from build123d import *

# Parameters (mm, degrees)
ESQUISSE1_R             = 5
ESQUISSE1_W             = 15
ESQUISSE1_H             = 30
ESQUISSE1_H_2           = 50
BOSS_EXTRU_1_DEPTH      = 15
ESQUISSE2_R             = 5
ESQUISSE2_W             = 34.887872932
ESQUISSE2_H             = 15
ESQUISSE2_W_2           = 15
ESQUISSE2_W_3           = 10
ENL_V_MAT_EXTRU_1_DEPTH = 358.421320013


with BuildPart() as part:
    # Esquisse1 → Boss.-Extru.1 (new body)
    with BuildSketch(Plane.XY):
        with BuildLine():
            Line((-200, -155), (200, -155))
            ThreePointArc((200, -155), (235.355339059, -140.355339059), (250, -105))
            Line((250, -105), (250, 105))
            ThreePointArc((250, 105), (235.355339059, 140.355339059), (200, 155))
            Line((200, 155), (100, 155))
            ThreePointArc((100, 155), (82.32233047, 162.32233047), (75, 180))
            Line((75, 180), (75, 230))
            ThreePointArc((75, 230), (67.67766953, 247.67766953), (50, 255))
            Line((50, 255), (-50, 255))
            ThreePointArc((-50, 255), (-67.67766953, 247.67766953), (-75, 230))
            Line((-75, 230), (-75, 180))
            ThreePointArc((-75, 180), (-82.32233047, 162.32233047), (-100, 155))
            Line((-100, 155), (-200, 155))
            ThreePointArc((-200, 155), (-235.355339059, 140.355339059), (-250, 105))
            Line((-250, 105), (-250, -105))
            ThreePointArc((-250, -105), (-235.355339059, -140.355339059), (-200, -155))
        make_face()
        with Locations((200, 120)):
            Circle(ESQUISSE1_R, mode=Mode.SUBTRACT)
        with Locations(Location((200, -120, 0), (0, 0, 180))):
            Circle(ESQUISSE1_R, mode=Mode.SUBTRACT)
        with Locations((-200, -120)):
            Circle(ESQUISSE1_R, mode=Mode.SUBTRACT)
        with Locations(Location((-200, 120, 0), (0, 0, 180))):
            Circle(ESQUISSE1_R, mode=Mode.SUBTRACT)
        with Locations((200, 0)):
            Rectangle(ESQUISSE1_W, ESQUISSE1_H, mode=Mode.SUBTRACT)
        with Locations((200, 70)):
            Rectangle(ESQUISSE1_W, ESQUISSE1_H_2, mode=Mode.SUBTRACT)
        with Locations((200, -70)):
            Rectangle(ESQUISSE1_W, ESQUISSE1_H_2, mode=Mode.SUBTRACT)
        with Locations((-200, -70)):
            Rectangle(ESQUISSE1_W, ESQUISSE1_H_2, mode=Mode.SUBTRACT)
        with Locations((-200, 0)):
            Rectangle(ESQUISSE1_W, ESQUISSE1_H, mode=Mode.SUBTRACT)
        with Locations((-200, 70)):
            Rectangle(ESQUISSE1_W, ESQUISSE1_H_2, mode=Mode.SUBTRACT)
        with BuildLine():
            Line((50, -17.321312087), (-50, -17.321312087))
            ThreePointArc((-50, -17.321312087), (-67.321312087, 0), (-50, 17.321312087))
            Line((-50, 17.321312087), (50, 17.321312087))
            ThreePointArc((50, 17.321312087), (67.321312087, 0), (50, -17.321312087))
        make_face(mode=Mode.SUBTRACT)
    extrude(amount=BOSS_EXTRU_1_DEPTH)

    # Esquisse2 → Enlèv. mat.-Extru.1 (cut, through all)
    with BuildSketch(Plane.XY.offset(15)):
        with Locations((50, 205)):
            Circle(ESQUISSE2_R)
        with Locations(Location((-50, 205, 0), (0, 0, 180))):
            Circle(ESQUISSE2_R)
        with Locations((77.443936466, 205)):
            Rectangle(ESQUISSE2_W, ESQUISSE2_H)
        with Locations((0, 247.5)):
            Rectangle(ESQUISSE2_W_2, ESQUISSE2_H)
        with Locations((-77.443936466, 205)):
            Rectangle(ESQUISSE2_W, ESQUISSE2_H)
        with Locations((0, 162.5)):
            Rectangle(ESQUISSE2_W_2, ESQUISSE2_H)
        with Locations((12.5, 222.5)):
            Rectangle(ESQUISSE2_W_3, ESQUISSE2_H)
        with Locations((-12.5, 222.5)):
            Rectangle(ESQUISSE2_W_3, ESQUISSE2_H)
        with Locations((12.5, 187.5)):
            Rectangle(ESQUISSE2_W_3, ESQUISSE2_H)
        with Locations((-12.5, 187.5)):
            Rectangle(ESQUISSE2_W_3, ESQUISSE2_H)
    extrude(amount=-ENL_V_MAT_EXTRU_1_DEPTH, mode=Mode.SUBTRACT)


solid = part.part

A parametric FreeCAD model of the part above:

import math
import FreeCAD as App
import Part
import Sketcher
from FreeCAD import Vector


def add_polygon(sketch, points):
    """Adds a closed chain of lines whose ends are joined by coincident constraints."""
    first, n = sketch.GeometryCount, len(points)
    for a, b in zip(points, points[1:] + points[:1]):
        sketch.addGeometry(Part.LineSegment(App.Vector(*a, 0), App.Vector(*b, 0)), False)
    for i in range(n):
        sketch.addConstraint(Sketcher.Constraint("Coincident", first + i, 2, first + (i + 1) % n, 1))

doc = App.newDocument("Part")
params = doc.addObject("Spreadsheet::Sheet", "Params")
for row, (alias, value) in enumerate([
    ("sketch1_diameter", "10 mm"),
    ("sketch1_radius", "50 mm"),
    ("sketch1_radius2", "25 mm"),
    ("sketch1_width", "400 mm"),
    ("sketch1_width2", "15 mm"),
    ("pad1_length", "15 mm"),
    ("sketch2_diameter", "10 mm"),
    ("sketch2_width", "15 mm"),
    ("sketch2_width2", "10 mm"),
], start=1):
    params.set(f"A{row}", alias)
    params.set(f"B{row}", "=" + value)
    params.setAlias(f"B{row}", alias)

body = doc.addObject("PartDesign::Body", "Body")

sketch1 = doc.addObject("Sketcher::SketchObject", "Sketch")
body.addObject(sketch1)
sketch1.AttachmentSupport = (doc.XY_Plane, [""])
sketch1.MapMode = "FlatFace"
sketch1.addGeometry(Part.LineSegment(Vector(-200, -155, 0), Vector(200, -155, 0)), False)
sketch1.addGeometry(Part.ArcOfCircle(Part.Circle(Vector(200, -105, 0), Vector(0, 0, 1), 50), math.radians(-90), math.radians(0)), False)
sketch1.addGeometry(Part.LineSegment(Vector(250, -105, 0), Vector(250, 105, 0)), False)
sketch1.addGeometry(Part.ArcOfCircle(Part.Circle(Vector(200, 105, 0), Vector(0, 0, 1), 50), math.radians(0), math.radians(90)), False)
sketch1.addGeometry(Part.LineSegment(Vector(200, 155, 0), Vector(100, 155, 0)), False)
sketch1.addGeometry(Part.ArcOfCircle(Part.Circle(Vector(100, 180, 0), Vector(0, 0, 1), 25), math.radians(180), math.radians(270)), False)
sketch1.addGeometry(Part.LineSegment(Vector(75, 180, 0), Vector(75, 230, 0)), False)
sketch1.addGeometry(Part.ArcOfCircle(Part.Circle(Vector(50, 230, 0), Vector(0, 0, 1), 25), math.radians(0), math.radians(90)), False)
sketch1.addGeometry(Part.LineSegment(Vector(50, 255, 0), Vector(-50, 255, 0)), False)
sketch1.addGeometry(Part.ArcOfCircle(Part.Circle(Vector(-50, 230, 0), Vector(0, 0, 1), 25), math.radians(90), math.radians(180)), False)
sketch1.addGeometry(Part.LineSegment(Vector(-75, 230, 0), Vector(-75, 180, 0)), False)
sketch1.addGeometry(Part.ArcOfCircle(Part.Circle(Vector(-100, 180, 0), Vector(0, 0, 1), 25), math.radians(-90), math.radians(0)), False)
sketch1.addGeometry(Part.LineSegment(Vector(-100, 155, 0), Vector(-200, 155, 0)), False)
sketch1.addGeometry(Part.ArcOfCircle(Part.Circle(Vector(-200, 105, 0), Vector(0, 0, 1), 50), math.radians(90), math.radians(180)), False)
sketch1.addGeometry(Part.LineSegment(Vector(-250, 105, 0), Vector(-250, -105, 0)), False)
sketch1.addGeometry(Part.ArcOfCircle(Part.Circle(Vector(-200, -105, 0), Vector(0, 0, 1), 50), math.radians(-180), math.radians(-90)), False)
sketch1.addGeometry(Part.Circle(Vector(-200, -120, 0), Vector(0, 0, 1), 5), False)
add_polygon(sketch1, [(-192, -95), (-208, -95), (-208, -45), (-192, -45)])
sketch1.addGeometry(Part.Circle(Vector(200, -120, 0), Vector(0, 0, 1), 5), False)
add_polygon(sketch1, [(208, -95), (192, -95), (192, -45), (208, -45)])
add_polygon(sketch1, [(-192, -15), (-208, -15), (-208, 15), (-192, 15)])
add_polygon(sketch1, [(-192, 45), (-208, 45), (-208, 95), (-192, 95)])
sketch1.addGeometry(Part.Circle(Vector(-200, 120, 0), Vector(0, 0, 1), 5), False)
sketch1.addGeometry(Part.ArcOfCircle(Part.Circle(Vector(50, 0, 0), Vector(0, 0, 1), 17), math.radians(-90), math.radians(90)), False)
sketch1.addGeometry(Part.LineSegment(Vector(50, -17, 0), Vector(-50, -17, 0)), False)
sketch1.addGeometry(Part.ArcOfCircle(Part.Circle(Vector(-50, 0, 0), Vector(0, 0, 1), 17), math.radians(90), math.radians(270)), False)
sketch1.addGeometry(Part.LineSegment(Vector(-50, 17, 0), Vector(50, 17, 0)), False)
add_polygon(sketch1, [(208, -15), (192, -15), (192, 15), (208, 15)])
add_polygon(sketch1, [(208, 45), (192, 45), (192, 95), (208, 95)])
sketch1.addGeometry(Part.Circle(Vector(200, 120, 0), Vector(0, 0, 1), 5), False)
sketch1.addConstraint(Sketcher.Constraint("Tangent", 0, 2, 1, 1))
sketch1.addConstraint(Sketcher.Constraint("Tangent", 1, 2, 2, 1))
sketch1.addConstraint(Sketcher.Constraint("Tangent", 2, 2, 3, 1))
sketch1.addConstraint(Sketcher.Constraint("Tangent", 3, 2, 4, 1))
sketch1.addConstraint(Sketcher.Constraint("Tangent", 4, 2, 5, 2))
sketch1.addConstraint(Sketcher.Constraint("Tangent", 5, 1, 6, 1))
sketch1.addConstraint(Sketcher.Constraint("Tangent", 6, 2, 7, 1))
sketch1.addConstraint(Sketcher.Constraint("Tangent", 7, 2, 8, 1))
sketch1.addConstraint(Sketcher.Constraint("Tangent", 8, 2, 9, 1))
sketch1.addConstraint(Sketcher.Constraint("Tangent", 9, 2, 10, 1))
sketch1.addConstraint(Sketcher.Constraint("Tangent", 10, 2, 11, 2))
sketch1.addConstraint(Sketcher.Constraint("Tangent", 11, 1, 12, 1))
sketch1.addConstraint(Sketcher.Constraint("Tangent", 12, 2, 13, 1))
sketch1.addConstraint(Sketcher.Constraint("Tangent", 13, 2, 14, 1))
sketch1.addConstraint(Sketcher.Constraint("Tangent", 14, 2, 15, 1))
sketch1.addConstraint(Sketcher.Constraint("Tangent", 15, 2, 0, 1))
sketch1.addConstraint(Sketcher.Constraint("Tangent", 35, 1, 36, 1))
sketch1.addConstraint(Sketcher.Constraint("Tangent", 36, 2, 37, 2))
sketch1.addConstraint(Sketcher.Constraint("Tangent", 37, 1, 38, 1))
sketch1.addConstraint(Sketcher.Constraint("Tangent", 38, 2, 35, 2))
sketch1.addConstraint(Sketcher.Constraint("Horizontal", 0))
sketch1.addConstraint(Sketcher.Constraint("Vertical", 2))
sketch1.addConstraint(Sketcher.Constraint("Horizontal", 4))
sketch1.addConstraint(Sketcher.Constraint("Vertical", 6))
sketch1.addConstraint(Sketcher.Constraint("Horizontal", 8))
sketch1.addConstraint(Sketcher.Constraint("Vertical", 10))
sketch1.addConstraint(Sketcher.Constraint("Horizontal", 12))
sketch1.addConstraint(Sketcher.Constraint("Vertical", 14))
sketch1.addConstraint(Sketcher.Constraint("Horizontal", 17))
sketch1.addConstraint(Sketcher.Constraint("Vertical", 18))
sketch1.addConstraint(Sketcher.Constraint("Horizontal", 19))
sketch1.addConstraint(Sketcher.Constraint("Vertical", 20))
sketch1.addConstraint(Sketcher.Constraint("Horizontal", 22))
sketch1.addConstraint(Sketcher.Constraint("Vertical", 23))
sketch1.addConstraint(Sketcher.Constraint("Horizontal", 24))
sketch1.addConstraint(Sketcher.Constraint("Vertical", 25))
sketch1.addConstraint(Sketcher.Constraint("Horizontal", 26))
sketch1.addConstraint(Sketcher.Constraint("Vertical", 27))
sketch1.addConstraint(Sketcher.Constraint("Horizontal", 28))
sketch1.addConstraint(Sketcher.Constraint("Vertical", 29))
sketch1.addConstraint(Sketcher.Constraint("Horizontal", 30))
sketch1.addConstraint(Sketcher.Constraint("Vertical", 31))
sketch1.addConstraint(Sketcher.Constraint("Horizontal", 32))
sketch1.addConstraint(Sketcher.Constraint("Vertical", 33))
sketch1.addConstraint(Sketcher.Constraint("Horizontal", 36))
sketch1.addConstraint(Sketcher.Constraint("Horizontal", 38))
sketch1.addConstraint(Sketcher.Constraint("Horizontal", 39))
sketch1.addConstraint(Sketcher.Constraint("Vertical", 40))
sketch1.addConstraint(Sketcher.Constraint("Horizontal", 41))
sketch1.addConstraint(Sketcher.Constraint("Vertical", 42))
sketch1.addConstraint(Sketcher.Constraint("Horizontal", 43))
sketch1.addConstraint(Sketcher.Constraint("Vertical", 44))
sketch1.addConstraint(Sketcher.Constraint("Horizontal", 45))
sketch1.addConstraint(Sketcher.Constraint("Vertical", 46))
sketch1.addConstraint(Sketcher.Constraint("Equal", 1, 3))
sketch1.addConstraint(Sketcher.Constraint("Equal", 5, 7))
sketch1.addConstraint(Sketcher.Constraint("Equal", 7, 9))
sketch1.addConstraint(Sketcher.Constraint("Equal", 9, 11))
sketch1.addConstraint(Sketcher.Constraint("Equal", 3, 13))
sketch1.addConstraint(Sketcher.Constraint("Equal", 13, 15))
sketch1.addConstraint(Sketcher.Constraint("Equal", 16, 21))
sketch1.addConstraint(Sketcher.Constraint("Equal", 21, 34))
sketch1.addConstraint(Sketcher.Constraint("Equal", 34, 47))
sketch1.addConstraint(Sketcher.Constraint("Symmetric", 1, 3, 13, 3, -1, 1))
sketch1.addConstraint(Sketcher.Constraint("Symmetric", 21, 3, 34, 3, -1, 1))
sketch1.addConstraint(Sketcher.Constraint("Symmetric", 35, 3, 37, 3, -1, 1))
sketch1.addConstraint(Sketcher.Constraint("Symmetric", 16, 3, 47, 3, -1, 1))
sketch1.addConstraint(Sketcher.Constraint("Symmetric", 24, 2, 30, 2, -1, 1))
sketch1.addConstraint(Sketcher.Constraint("Symmetric", 22, 2, 32, 2, -1, 1))
sketch1.addConstraint(Sketcher.Constraint("Symmetric", 28, 2, 39, 2, -1, 1))
sketch1.addConstraint(Sketcher.Constraint("Symmetric", 26, 2, 41, 2, -1, 1))
sketch1.addConstraint(Sketcher.Constraint("Symmetric", 19, 2, 43, 2, -1, 1))
sketch1.addConstraint(Sketcher.Constraint("Symmetric", 17, 2, 45, 2, -1, 1))
sketch1.addConstraint(Sketcher.Constraint("Symmetric", 5, 3, 11, 3, -2))
sketch1.addConstraint(Sketcher.Constraint("Symmetric", 16, 3, 21, 3, -2))
sketch1.addConstraint(Sketcher.Constraint("Symmetric", 20, 2, 22, 2, -2))
sketch1.addConstraint(Sketcher.Constraint("Symmetric", 18, 2, 24, 2, -2))
sketch1.addConstraint(Sketcher.Constraint("Horizontal", 29, 2, 39, 2))
sketch1.addConstraint(Sketcher.Constraint("Vertical", 15, 3, 16, 3))
sketch1.addConstraint(Sketcher.Constraint("Vertical", 7, 3, 35, 3))
sketch1.addConstraint(Sketcher.Constraint("Vertical", 18, 2, 26, 2))
sketch1.addConstraint(Sketcher.Constraint("Vertical", 20, 2, 28, 2))
sketch1.addConstraint(Sketcher.Constraint("Equal", 4, 8))
sketch1.addConstraint(Sketcher.Constraint("Equal", 10, 18))
sketch1.addConstraint(Sketcher.Constraint("Diameter", 16, 10.0))
sketch1.addConstraint(Sketcher.Constraint("Radius", 1, 50.0))
sketch1.addConstraint(Sketcher.Constraint("Radius", 5, 25.0))
sketch1.addConstraint(Sketcher.Constraint("DistanceX", 0, 1, 0, 2, 400.0))
sketch1.addConstraint(Sketcher.Constraint("DistanceX", 17, 2, 17, 1, 15.0))
sketch1.addConstraint(Sketcher.Constraint("DistanceY", 2, 1, 2, 2, 210.0))
sketch1.addConstraint(Sketcher.Constraint("DistanceY", 6, 1, 6, 2, 50.0))
sketch1.addConstraint(Sketcher.Constraint("DistanceY", 27, 1, 27, 2, 30.0))
sketch1.addConstraint(Sketcher.Constraint("DistanceY", 16, 3, -1, 1, 120.0))
sketch1.addConstraint(Sketcher.Constraint("DistanceY", 17, 2, -1, 1, 95.0))
sketch1.addConstraint(Sketcher.Constraint("DistanceX", 17, 2, -1, 1, 207.5))
sketch1.addConstraint(Sketcher.Constraint("Radius", 35, 17.321312))
sketch1.setExpression("Constraints[108]", "Params.sketch1_diameter")
sketch1.setExpression("Constraints[109]", "Params.sketch1_radius")
sketch1.setExpression("Constraints[110]", "Params.sketch1_radius2")
sketch1.setExpression("Constraints[111]", "Params.sketch1_width")
sketch1.setExpression("Constraints[112]", "Params.sketch1_width2")
pad1 = doc.addObject("PartDesign::Pad", "Pad")
body.addObject(pad1)
pad1.Profile = sketch1
pad1.setExpression("Length", "Params.pad1_length")

sketch2 = doc.addObject("Sketcher::SketchObject", "Sketch001")
body.addObject(sketch2)
sketch2.AttachmentSupport = (doc.XY_Plane, [""])
sketch2.MapMode = "FlatFace"
sketch2.AttachmentOffset = App.Placement(Vector(0, 0, 15), App.Rotation())
sketch2.addGeometry(Part.Circle(Vector(50, 205, 0), Vector(0, 0, 1), 5), False)
sketch2.addGeometry(Part.Circle(Vector(-50, 205, 0), Vector(0, 0, 1), 5), False)
add_polygon(sketch2, [(60, 212), (60, 198), (95, 198), (95, 212)])
add_polygon(sketch2, [(-8, 255), (-8, 240), (8, 240), (8, 255)])
add_polygon(sketch2, [(-95, 212), (-95, 198), (-60, 198), (-60, 212)])
add_polygon(sketch2, [(-8, 170), (-8, 155), (8, 155), (8, 170)])
add_polygon(sketch2, [(8, 230), (8, 215), (18, 215), (18, 230)])
add_polygon(sketch2, [(-18, 230), (-18, 215), (-8, 215), (-8, 230)])
add_polygon(sketch2, [(8, 195), (8, 180), (18, 180), (18, 195)])
add_polygon(sketch2, [(-18, 195), (-18, 180), (-8, 180), (-8, 195)])
sketch2.addConstraint(Sketcher.Constraint("Vertical", 2))
sketch2.addConstraint(Sketcher.Constraint("Horizontal", 3))
sketch2.addConstraint(Sketcher.Constraint("Vertical", 4))
sketch2.addConstraint(Sketcher.Constraint("Horizontal", 5))
sketch2.addConstraint(Sketcher.Constraint("Vertical", 6))
sketch2.addConstraint(Sketcher.Constraint("Horizontal", 7))
sketch2.addConstraint(Sketcher.Constraint("Vertical", 8))
sketch2.addConstraint(Sketcher.Constraint("Horizontal", 9))
sketch2.addConstraint(Sketcher.Constraint("Vertical", 10))
sketch2.addConstraint(Sketcher.Constraint("Horizontal", 11))
sketch2.addConstraint(Sketcher.Constraint("Vertical", 12))
sketch2.addConstraint(Sketcher.Constraint("Horizontal", 13))
sketch2.addConstraint(Sketcher.Constraint("Vertical", 14))
sketch2.addConstraint(Sketcher.Constraint("Horizontal", 15))
sketch2.addConstraint(Sketcher.Constraint("Vertical", 16))
sketch2.addConstraint(Sketcher.Constraint("Horizontal", 17))
sketch2.addConstraint(Sketcher.Constraint("Vertical", 18))
sketch2.addConstraint(Sketcher.Constraint("Horizontal", 19))
sketch2.addConstraint(Sketcher.Constraint("Vertical", 20))
sketch2.addConstraint(Sketcher.Constraint("Horizontal", 21))
sketch2.addConstraint(Sketcher.Constraint("Vertical", 22))
sketch2.addConstraint(Sketcher.Constraint("Horizontal", 23))
sketch2.addConstraint(Sketcher.Constraint("Vertical", 24))
sketch2.addConstraint(Sketcher.Constraint("Horizontal", 25))
sketch2.addConstraint(Sketcher.Constraint("Vertical", 26))
sketch2.addConstraint(Sketcher.Constraint("Horizontal", 27))
sketch2.addConstraint(Sketcher.Constraint("Vertical", 28))
sketch2.addConstraint(Sketcher.Constraint("Horizontal", 29))
sketch2.addConstraint(Sketcher.Constraint("Vertical", 30))
sketch2.addConstraint(Sketcher.Constraint("Horizontal", 31))
sketch2.addConstraint(Sketcher.Constraint("Vertical", 32))
sketch2.addConstraint(Sketcher.Constraint("Horizontal", 33))
sketch2.addConstraint(Sketcher.Constraint("Equal", 0, 1))
sketch2.addConstraint(Sketcher.Constraint("Symmetric", 0, 3, 1, 3, -2))
sketch2.addConstraint(Sketcher.Constraint("Symmetric", 3, 2, 10, 2, -2))
sketch2.addConstraint(Sketcher.Constraint("Symmetric", 5, 2, 12, 2, -2))
sketch2.addConstraint(Sketcher.Constraint("Symmetric", 19, 2, 22, 2, -2))
sketch2.addConstraint(Sketcher.Constraint("Symmetric", 21, 2, 24, 2, -2))
sketch2.addConstraint(Sketcher.Constraint("Symmetric", 27, 2, 30, 2, -2))
sketch2.addConstraint(Sketcher.Constraint("Symmetric", 29, 2, 32, 2, -2))
sketch2.addConstraint(Sketcher.Constraint("Vertical", 9, 2, 14, 2))
sketch2.addConstraint(Sketcher.Constraint("Vertical", 8, 2, 15, 2))
sketch2.addConstraint(Sketcher.Constraint("Vertical", 16, 2, 18, 2))
sketch2.addConstraint(Sketcher.Constraint("Vertical", 17, 2, 23, 2))
sketch2.addConstraint(Sketcher.Constraint("Vertical", 21, 2, 26, 2))
sketch2.addConstraint(Sketcher.Constraint("Vertical", 20, 2, 27, 2))
sketch2.addConstraint(Sketcher.Constraint("Equal", 17, 2))
sketch2.addConstraint(Sketcher.Constraint("Equal", 4, 6))
sketch2.addConstraint(Sketcher.Constraint("Equal", 12, 14))
sketch2.addConstraint(Sketcher.Constraint("Equal", 16, 18))
sketch2.addConstraint(Sketcher.Constraint("Equal", 24, 26))
sketch2.addConstraint(Sketcher.Constraint("Diameter", 0, 10.0))
sketch2.addConstraint(Sketcher.Constraint("DistanceX", 7, 1, 7, 2, 15.0))
sketch2.addConstraint(Sketcher.Constraint("DistanceX", 19, 1, 19, 2, 10.0))
sketch2.addConstraint(Sketcher.Constraint("DistanceX", -1, 1, 0, 3, 50.0))
sketch2.addConstraint(Sketcher.Constraint("DistanceY", -1, 1, 0, 3, 205.0))
sketch2.addConstraint(Sketcher.Constraint("DistanceX", -1, 1, 2, 2, 60.0))
sketch2.addConstraint(Sketcher.Constraint("DistanceY", -1, 1, 6, 2, 240.0))
sketch2.addConstraint(Sketcher.Constraint("DistanceY", -1, 1, 14, 2, 155.0))
sketch2.addConstraint(Sketcher.Constraint("DistanceY", -1, 1, 18, 2, 215.0))
sketch2.addConstraint(Sketcher.Constraint("DistanceY", -1, 1, 26, 2, 180.0))
sketch2.addConstraint(Sketcher.Constraint("DistanceY", -1, 1, 2, 2, 197.5))
sketch2.addConstraint(Sketcher.Constraint("DistanceX", 3, 1, 3, 2, 34.887873))
sketch2.setExpression("Constraints[83]", "Params.sketch2_diameter")
sketch2.setExpression("Constraints[84]", "Params.sketch2_width")
sketch2.setExpression("Constraints[85]", "Params.sketch2_width2")
pocket1 = doc.addObject("PartDesign::Pocket", "Pocket")
body.addObject(pocket1)
pocket1.Profile = sketch2
pocket1.Type = "ThroughAll"

doc.recompute()
